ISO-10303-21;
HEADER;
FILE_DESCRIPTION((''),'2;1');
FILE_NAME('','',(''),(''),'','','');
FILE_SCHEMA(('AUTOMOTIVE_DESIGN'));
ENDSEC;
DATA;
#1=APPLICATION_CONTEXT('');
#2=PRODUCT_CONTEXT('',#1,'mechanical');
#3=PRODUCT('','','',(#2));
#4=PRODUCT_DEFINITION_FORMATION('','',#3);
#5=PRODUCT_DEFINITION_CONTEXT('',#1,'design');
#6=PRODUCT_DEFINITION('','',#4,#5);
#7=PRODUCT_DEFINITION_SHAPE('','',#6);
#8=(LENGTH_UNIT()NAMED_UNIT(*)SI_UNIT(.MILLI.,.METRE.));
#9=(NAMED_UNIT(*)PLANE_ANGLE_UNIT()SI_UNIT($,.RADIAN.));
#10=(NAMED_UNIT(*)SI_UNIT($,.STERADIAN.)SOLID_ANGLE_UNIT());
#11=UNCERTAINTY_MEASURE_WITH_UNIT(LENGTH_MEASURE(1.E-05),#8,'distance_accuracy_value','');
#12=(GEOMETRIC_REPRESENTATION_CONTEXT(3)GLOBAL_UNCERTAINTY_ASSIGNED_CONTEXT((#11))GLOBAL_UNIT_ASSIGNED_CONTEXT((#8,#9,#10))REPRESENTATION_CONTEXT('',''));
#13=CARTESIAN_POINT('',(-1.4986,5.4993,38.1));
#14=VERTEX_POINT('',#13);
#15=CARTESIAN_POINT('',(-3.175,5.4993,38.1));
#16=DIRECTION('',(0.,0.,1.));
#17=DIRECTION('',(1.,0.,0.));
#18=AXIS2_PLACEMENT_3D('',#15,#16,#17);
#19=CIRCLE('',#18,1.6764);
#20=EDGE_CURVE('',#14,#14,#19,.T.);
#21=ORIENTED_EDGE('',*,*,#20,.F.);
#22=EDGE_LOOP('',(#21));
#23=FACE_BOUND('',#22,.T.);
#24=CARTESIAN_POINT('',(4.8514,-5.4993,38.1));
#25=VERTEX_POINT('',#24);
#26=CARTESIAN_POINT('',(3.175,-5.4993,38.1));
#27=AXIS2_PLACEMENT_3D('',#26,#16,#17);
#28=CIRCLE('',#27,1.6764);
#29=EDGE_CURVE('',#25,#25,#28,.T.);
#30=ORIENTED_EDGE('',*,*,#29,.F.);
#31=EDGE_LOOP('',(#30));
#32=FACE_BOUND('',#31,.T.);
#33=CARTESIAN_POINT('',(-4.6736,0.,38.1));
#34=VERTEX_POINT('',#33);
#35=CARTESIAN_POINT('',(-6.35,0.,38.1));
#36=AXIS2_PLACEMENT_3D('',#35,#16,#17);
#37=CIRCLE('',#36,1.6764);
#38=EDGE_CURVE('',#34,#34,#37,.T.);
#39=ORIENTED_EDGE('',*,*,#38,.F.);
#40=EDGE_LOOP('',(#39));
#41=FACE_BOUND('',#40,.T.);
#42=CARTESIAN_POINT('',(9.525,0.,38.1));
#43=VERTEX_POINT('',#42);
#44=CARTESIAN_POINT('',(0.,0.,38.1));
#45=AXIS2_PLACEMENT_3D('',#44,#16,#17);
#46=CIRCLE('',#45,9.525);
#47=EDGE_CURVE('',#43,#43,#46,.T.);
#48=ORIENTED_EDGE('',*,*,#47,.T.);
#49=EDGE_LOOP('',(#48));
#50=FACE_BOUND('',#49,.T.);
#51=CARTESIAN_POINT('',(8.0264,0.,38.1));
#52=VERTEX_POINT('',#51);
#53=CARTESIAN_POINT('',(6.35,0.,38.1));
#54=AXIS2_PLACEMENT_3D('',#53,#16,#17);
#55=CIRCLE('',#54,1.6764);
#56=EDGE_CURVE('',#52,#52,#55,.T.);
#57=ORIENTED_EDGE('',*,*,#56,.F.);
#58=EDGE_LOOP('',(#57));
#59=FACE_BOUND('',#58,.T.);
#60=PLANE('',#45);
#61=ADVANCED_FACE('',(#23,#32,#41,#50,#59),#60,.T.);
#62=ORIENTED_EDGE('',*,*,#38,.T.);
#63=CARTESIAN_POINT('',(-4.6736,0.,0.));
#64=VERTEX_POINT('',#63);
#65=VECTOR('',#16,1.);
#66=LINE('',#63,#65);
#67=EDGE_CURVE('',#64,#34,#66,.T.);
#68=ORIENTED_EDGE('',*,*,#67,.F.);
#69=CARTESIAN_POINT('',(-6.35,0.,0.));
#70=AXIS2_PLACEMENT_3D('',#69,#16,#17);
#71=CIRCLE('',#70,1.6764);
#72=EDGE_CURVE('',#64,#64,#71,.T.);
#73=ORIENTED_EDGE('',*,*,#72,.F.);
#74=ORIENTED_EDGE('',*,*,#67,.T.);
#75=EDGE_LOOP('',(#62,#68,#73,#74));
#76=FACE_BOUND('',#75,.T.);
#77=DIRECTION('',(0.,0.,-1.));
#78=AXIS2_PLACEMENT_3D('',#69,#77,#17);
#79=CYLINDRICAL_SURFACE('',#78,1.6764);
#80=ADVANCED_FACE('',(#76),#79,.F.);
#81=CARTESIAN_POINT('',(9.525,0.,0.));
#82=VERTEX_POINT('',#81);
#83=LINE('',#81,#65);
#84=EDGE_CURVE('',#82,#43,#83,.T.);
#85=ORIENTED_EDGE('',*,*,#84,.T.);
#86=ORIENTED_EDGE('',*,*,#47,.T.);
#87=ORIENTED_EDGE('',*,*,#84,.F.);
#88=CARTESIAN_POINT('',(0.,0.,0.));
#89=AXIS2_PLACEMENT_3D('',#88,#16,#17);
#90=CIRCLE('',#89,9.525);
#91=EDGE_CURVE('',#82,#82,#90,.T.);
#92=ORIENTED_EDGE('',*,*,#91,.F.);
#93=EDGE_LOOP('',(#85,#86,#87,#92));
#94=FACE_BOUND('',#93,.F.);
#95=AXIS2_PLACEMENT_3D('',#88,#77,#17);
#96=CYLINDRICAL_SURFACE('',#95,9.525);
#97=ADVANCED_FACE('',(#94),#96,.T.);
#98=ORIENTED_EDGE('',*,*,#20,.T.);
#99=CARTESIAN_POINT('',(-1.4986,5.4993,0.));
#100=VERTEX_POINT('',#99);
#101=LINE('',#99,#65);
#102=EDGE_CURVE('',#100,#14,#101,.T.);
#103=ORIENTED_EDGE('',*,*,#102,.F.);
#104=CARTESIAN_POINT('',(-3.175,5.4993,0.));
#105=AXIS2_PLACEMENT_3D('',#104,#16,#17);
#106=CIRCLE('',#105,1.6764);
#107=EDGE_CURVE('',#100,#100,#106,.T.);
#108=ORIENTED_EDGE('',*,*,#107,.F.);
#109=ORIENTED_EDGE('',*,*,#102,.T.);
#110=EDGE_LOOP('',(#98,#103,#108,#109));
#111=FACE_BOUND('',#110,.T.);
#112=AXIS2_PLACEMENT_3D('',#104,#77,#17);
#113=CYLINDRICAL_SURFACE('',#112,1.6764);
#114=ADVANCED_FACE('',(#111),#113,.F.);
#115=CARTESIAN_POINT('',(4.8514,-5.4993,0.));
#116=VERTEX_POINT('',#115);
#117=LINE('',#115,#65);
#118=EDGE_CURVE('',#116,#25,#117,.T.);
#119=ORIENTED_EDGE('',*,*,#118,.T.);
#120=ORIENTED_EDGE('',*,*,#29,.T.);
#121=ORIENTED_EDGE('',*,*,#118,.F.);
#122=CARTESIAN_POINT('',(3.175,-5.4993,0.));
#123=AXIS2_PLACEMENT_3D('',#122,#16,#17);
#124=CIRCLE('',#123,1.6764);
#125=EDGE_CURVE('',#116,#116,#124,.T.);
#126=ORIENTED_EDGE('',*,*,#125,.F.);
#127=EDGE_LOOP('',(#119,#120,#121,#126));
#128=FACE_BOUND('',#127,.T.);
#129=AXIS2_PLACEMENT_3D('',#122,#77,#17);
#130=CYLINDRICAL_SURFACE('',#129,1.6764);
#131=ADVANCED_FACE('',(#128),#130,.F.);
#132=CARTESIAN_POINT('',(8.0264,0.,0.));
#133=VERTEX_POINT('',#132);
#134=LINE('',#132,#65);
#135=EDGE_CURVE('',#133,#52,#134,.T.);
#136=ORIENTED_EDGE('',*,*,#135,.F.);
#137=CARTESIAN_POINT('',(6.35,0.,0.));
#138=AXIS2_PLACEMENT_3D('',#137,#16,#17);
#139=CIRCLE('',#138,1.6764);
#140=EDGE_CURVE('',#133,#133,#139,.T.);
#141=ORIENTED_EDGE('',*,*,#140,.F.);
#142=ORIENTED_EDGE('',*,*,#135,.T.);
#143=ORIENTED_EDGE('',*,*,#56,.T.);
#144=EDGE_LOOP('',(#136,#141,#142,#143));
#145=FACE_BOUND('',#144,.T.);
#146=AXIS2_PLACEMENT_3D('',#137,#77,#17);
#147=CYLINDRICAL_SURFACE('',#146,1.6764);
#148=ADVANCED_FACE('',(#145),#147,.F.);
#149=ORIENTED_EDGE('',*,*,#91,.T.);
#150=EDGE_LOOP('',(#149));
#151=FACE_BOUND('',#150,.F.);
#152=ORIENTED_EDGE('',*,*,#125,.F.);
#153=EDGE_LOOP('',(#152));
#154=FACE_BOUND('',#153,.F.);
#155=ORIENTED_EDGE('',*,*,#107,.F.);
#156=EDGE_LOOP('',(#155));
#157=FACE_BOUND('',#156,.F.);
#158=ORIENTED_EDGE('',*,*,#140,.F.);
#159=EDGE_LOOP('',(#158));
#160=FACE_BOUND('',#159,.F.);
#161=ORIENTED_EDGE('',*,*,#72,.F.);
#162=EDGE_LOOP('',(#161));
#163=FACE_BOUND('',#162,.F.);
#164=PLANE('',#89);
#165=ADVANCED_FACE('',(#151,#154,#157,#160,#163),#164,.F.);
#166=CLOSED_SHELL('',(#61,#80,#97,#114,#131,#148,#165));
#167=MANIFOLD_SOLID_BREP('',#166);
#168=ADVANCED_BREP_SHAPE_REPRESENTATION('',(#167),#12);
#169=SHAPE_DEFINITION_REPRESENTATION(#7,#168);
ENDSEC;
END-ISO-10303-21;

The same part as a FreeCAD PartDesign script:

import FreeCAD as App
import Part
import Sketcher
Q = App.Units.Quantity

doc = App.newDocument("Part")
body = doc.addObject("PartDesign::Body", "Body")

# Sketch on XY plane
sketch1 = body.newObject("Sketcher::SketchObject", "Sketch")
sketch1.AttachmentSupport = (doc.getObject("XY_Plane"), [""])
sketch1.MapMode = "FlatFace"
sketch1.addGeometry(Part.Circle(App.Vector(0, 0, 0), App.Vector(0, 0, 1), 9.525), False)
sketch1.addGeometry(Part.Circle(App.Vector(3.175, -5.4993, 0), App.Vector(0, 0, 1), 1.6764), False)
sketch1.addGeometry(Part.Circle(App.Vector(-6.35, 0, 0), App.Vector(0, 0, 1), 1.6764), False)
sketch1.addGeometry(Part.Circle(App.Vector(-3.175, 5.4993, 0), App.Vector(0, 0, 1), 1.6764), False)
sketch1.addGeometry(Part.Circle(App.Vector(6.35, 0, 0), App.Vector(0, 0, 1), 1.6764), False)
sketch1.addConstraint(Sketcher.Constraint("Coincident", 0, 3, -1, 1))
sketch1.addConstraint(Sketcher.Constraint("Equal", 1, 2))
sketch1.addConstraint(Sketcher.Constraint("Equal", 2, 3))
sketch1.addConstraint(Sketcher.Constraint("Equal", 3, 4))
sketch1.addConstraint(Sketcher.Constraint("Symmetric", 1, 3, 3, 3, -1, 1))
sketch1.addConstraint(Sketcher.Constraint("Symmetric", 2, 3, 4, 3, -1, 1))
sketch1.addConstraint(Sketcher.Constraint("PointOnObject", 2, 3, -1))
sketch1.addConstraint(Sketcher.Constraint("Diameter", 1, Q("0.132 in")))
sketch1.addConstraint(Sketcher.Constraint("Diameter", 0, Q("0.75 in")))
sketch1.addConstraint(Sketcher.Constraint("DistanceX", 2, 3, 4, 3, Q("0.5 in")))
sketch1.addConstraint(Sketcher.Constraint("DistanceX", 3, 3, 1, 3, Q("0.25 in")))
sketch1.addConstraint(Sketcher.Constraint("DistanceY", 1, 3, -1, 1, Q("0.2165 in")))
pad1 = body.newObject("PartDesign::Pad", "Pad")
pad1.Profile = sketch1
pad1.Length = Q("1.5 in")

doc.recompute()
